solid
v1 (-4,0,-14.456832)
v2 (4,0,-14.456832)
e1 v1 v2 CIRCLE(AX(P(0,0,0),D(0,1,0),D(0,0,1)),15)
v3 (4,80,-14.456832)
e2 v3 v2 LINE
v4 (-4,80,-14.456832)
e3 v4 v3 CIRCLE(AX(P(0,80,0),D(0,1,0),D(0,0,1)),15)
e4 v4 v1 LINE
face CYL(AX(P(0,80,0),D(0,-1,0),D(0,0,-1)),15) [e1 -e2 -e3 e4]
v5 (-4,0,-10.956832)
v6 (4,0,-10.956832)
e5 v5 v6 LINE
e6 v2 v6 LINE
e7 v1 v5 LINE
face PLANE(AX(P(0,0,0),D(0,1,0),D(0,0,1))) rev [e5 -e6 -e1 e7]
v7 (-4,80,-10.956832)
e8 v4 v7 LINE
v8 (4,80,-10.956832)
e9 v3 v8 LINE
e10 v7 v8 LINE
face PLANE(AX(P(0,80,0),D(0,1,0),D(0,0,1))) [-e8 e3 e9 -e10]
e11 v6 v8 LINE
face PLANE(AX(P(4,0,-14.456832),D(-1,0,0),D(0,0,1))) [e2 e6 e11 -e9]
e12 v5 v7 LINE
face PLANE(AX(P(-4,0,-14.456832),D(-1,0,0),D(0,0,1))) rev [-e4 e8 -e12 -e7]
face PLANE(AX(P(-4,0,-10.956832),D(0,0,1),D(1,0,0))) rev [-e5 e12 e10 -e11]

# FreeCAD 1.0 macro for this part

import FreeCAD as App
import Part
import Sketcher
Q = App.Units.Quantity

doc = App.newDocument("Part")
body = doc.addObject("PartDesign::Body", "Body")
body.AllowCompound = True

# Sketch on XZ plane
sketch1 = doc.addObject("Sketcher::SketchObject", "Sketch")
body.addObject(sketch1)
sketch1.AttachmentSupport = (doc.XZ_Plane, [""])
sketch1.MapMode = "FlatFace"
sketch1.addGeometry(Part.Circle(App.Vector(0, 0, 0), App.Vector(0, 0, 1), 15), False)
sketch1.addConstraint([
    Sketcher.Constraint("Coincident", 0, 3, -1, 1),
    Sketcher.Constraint("Diameter", 0, Q("30 mm")),
])
pad1 = doc.addObject("PartDesign::Pad", "Pad")
body.addObject(pad1)
pad1.Profile = sketch1
pad1.Length = 80
pad1.Reversed = True

# Sketch on XZ plane
sketch2 = doc.addObject("Sketcher::SketchObject", "Sketch001")
body.addObject(sketch2)
sketch2.AttachmentSupport = (doc.XZ_Plane, [""])
sketch2.MapMode = "FlatFace"
sketch2.AttachmentOffset = App.Placement(App.Vector(0, 0, -80), App.Rotation())
sketch2.addGeometry([
    Part.LineSegment(App.Vector(-4, -14.5, 0), App.Vector(-4, -11, 0)),
    Part.LineSegment(App.Vector(-4, -11, 0), App.Vector(4, -11, 0)),
    Part.LineSegment(App.Vector(4, -11, 0), App.Vector(4, -14.5, 0)),
    Part.LineSegment(App.Vector(4, -14.5, 0), App.Vector(-4, -14.5, 0)),
], False)
sketch2.addConstraint([
    Sketcher.Constraint("Coincident", 0, 2, 1, 1),
    Sketcher.Constraint("Coincident", 1, 2, 2, 1),
    Sketcher.Constraint("Coincident", 2, 2, 3, 1),
    Sketcher.Constraint("Coincident", 3, 2, 0, 1),
    Sketcher.Constraint("Vertical", 0),
    Sketcher.Constraint("Horizontal", 1),
    Sketcher.Constraint("Vertical", 2),
    Sketcher.Constraint("Horizontal", 3),
    Sketcher.Constraint("DistanceX", 1, 1, 1, 2, Q("8 mm")),
    Sketcher.Constraint("DistanceY", 0, 1, 0, 2, Q("3.5 mm")),
    Sketcher.Constraint("DistanceX", 0, 2, -1, 1, Q("4 mm")),
    Sketcher.Constraint("DistanceY", 0, 2, -1, 1, Q("10.956832 mm")),
])
pocket1 = doc.addObject("PartDesign::Pocket", "Pocket")
body.addObject(pocket1)
pocket1.Profile = sketch2
pocket1.Type = "ThroughAll"
pocket1.Reversed = True

# Sketch on XZ plane
sketch3 = doc.addObject("Sketcher::SketchObject", "Sketch002")
body.addObject(sketch3)
sketch3.AttachmentSupport = (doc.XZ_Plane, [""])
sketch3.MapMode = "FlatFace"
sketch3.AttachmentOffset = App.Placement(App.Vector(0, 0, -80), App.Rotation())
sketch3.addGeometry([
    Part.LineSegment(App.Vector(-4, -15.4, 0), App.Vector(-4, -14.5, 0)),
    Part.LineSegment(App.Vector(-4, -14.5, 0), App.Vector(4.5, -14.5, 0)),
    Part.LineSegment(App.Vector(4.5, -14.5, 0), App.Vector(4.5, -15.4, 0)),
    Part.LineSegment(App.Vector(4.5, -15.4, 0), App.Vector(-4, -15.4, 0)),
], False)
sketch3.addConstraint([
    Sketcher.Constraint("Coincident", 0, 2, 1, 1),
    Sketcher.Constraint("Coincident", 1, 2, 2, 1),
    Sketcher.Constraint("Coincident", 2, 2, 3, 1),
    Sketcher.Constraint("Coincident", 3, 2, 0, 1),
    Sketcher.Constraint("Vertical", 0),
    Sketcher.Constraint("Horizontal", 1),
    Sketcher.Constraint("Vertical", 2),
    Sketcher.Constraint("Horizontal", 3),
    Sketcher.Constraint("DistanceX", 0, 2, -1, 1, Q("4 mm")),
    Sketcher.Constraint("DistanceX", 1, 1, 1, 2, Q("8.467595 mm")),
    Sketcher.Constraint("DistanceY", 0, 1, 0, 2, Q("0.933653 mm")),
    Sketcher.Constraint("DistanceY", 0, 2, -1, 1, Q("14.456832 mm")),
])
pocket2 = doc.addObject("PartDesign::Pocket", "Pocket001")
body.addObject(pocket2)
pocket2.Profile = sketch3
pocket2.Type = "ThroughAll"
pocket2.Reversed = True

doc.recompute()
